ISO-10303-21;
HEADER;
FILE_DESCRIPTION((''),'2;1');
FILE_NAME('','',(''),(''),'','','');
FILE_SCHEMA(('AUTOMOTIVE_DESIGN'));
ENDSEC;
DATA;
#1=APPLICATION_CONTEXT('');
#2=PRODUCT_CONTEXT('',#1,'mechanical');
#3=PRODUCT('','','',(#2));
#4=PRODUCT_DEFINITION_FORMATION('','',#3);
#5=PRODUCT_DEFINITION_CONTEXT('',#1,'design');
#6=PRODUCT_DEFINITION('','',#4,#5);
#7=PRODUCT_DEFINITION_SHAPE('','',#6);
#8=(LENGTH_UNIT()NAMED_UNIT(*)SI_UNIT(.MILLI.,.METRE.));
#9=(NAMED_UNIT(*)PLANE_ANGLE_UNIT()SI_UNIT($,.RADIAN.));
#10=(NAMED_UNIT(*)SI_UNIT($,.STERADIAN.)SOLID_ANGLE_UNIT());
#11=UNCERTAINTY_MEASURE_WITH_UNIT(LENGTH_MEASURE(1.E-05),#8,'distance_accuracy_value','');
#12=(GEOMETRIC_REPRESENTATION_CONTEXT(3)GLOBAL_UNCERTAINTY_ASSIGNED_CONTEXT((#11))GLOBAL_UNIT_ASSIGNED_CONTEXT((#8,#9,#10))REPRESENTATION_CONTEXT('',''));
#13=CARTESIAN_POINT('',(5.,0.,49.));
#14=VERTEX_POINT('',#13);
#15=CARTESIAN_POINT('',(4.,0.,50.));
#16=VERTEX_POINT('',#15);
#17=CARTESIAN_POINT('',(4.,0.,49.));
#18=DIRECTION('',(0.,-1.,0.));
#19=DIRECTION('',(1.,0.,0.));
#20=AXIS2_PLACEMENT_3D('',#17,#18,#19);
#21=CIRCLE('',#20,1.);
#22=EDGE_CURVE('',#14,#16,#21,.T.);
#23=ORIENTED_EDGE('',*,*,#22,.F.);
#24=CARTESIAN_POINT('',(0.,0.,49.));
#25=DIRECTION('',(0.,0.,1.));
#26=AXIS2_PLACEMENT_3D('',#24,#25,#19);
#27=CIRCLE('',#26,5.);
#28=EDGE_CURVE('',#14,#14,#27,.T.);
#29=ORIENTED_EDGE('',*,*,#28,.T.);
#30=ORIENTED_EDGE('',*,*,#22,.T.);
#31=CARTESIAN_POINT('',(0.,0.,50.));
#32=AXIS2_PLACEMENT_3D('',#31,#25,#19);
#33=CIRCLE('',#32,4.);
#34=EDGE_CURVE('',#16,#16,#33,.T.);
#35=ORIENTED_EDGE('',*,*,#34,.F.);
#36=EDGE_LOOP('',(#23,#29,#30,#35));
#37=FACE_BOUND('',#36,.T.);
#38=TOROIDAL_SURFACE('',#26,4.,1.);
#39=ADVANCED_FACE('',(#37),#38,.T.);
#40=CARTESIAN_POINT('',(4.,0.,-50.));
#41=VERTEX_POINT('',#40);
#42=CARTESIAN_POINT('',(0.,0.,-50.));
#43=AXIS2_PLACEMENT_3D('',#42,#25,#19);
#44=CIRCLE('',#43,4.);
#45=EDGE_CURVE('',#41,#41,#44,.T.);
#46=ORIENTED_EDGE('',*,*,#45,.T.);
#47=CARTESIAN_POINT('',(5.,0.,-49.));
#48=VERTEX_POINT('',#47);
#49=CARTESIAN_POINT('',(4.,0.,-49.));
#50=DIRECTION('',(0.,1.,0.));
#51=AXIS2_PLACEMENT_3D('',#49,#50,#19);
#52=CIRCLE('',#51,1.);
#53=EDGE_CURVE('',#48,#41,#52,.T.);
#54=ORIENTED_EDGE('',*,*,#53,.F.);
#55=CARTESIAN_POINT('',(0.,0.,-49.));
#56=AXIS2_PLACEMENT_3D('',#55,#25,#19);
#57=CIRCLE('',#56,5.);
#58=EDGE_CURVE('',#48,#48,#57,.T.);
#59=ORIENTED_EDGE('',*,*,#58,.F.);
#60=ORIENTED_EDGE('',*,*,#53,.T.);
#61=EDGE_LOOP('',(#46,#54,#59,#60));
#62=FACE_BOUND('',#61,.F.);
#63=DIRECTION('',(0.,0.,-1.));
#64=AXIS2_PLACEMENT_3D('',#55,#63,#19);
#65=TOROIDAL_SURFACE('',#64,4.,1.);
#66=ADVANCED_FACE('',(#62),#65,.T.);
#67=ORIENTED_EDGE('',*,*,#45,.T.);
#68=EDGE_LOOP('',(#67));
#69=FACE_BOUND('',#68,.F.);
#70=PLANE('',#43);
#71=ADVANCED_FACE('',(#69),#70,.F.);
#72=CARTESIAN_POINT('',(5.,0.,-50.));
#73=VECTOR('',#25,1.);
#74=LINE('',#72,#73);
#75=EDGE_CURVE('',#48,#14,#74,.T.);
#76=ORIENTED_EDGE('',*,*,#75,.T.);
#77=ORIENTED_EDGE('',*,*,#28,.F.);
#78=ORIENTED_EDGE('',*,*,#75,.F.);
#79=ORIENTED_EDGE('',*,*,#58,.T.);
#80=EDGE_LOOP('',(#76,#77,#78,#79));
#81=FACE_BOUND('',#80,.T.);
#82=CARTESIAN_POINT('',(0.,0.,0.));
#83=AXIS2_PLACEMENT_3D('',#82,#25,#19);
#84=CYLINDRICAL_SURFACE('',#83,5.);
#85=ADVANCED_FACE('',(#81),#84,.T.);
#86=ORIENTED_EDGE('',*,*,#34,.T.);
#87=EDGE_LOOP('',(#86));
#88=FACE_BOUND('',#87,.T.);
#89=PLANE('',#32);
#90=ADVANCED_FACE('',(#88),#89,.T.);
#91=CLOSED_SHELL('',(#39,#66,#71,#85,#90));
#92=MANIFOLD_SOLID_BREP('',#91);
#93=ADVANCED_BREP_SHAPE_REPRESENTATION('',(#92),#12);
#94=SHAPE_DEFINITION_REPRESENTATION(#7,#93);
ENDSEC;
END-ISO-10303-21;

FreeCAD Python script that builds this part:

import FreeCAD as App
import Part
import Sketcher
Q = App.Units.Quantity


def edges_at(feature, points):
    """Names of the edges that pass closest to the given points."""
    edges = feature.Shape.Edges
    near = lambda p: min(range(len(edges)), key=lambda i: edges[i].distToShape(Part.Vertex(*p))[0])
    return sorted({f"Edge{near(p) + 1}" for p in points})

doc = App.newDocument("Part")
body = doc.addObject("PartDesign::Body", "Body")

# Sketch on XY plane
sketch1 = body.newObject("Sketcher::SketchObject", "Sketch")
sketch1.AttachmentSupport = (doc.getObject("XY_Plane"), [""])
sketch1.MapMode = "FlatFace"
sketch1.addGeometry(Part.Circle(App.Vector(0, 0, 0), App.Vector(0, 0, 1), 5), False)
sketch1.addConstraint(Sketcher.Constraint("Coincident", 0, 3, -1, 1))
sketch1.addConstraint(Sketcher.Constraint("Diameter", 0, Q("10 mm")))
pad1 = body.newObject("PartDesign::Pad", "Pad")
pad1.Profile = sketch1
pad1.Length = 100
pad1.Midplane = True
doc.recompute()

fillet = body.newObject("PartDesign::Fillet", "Fillet")
fillet.Base = (pad1, edges_at(pad1, [(-5, 0, 50)]))
fillet.Radius = 1
doc.recompute()

fillet2 = body.newObject("PartDesign::Fillet", "Fillet001")
fillet2.Base = (fillet, edges_at(fillet, [(-5, 0, -50)]))
fillet2.Radius = 1

doc.recompute()
